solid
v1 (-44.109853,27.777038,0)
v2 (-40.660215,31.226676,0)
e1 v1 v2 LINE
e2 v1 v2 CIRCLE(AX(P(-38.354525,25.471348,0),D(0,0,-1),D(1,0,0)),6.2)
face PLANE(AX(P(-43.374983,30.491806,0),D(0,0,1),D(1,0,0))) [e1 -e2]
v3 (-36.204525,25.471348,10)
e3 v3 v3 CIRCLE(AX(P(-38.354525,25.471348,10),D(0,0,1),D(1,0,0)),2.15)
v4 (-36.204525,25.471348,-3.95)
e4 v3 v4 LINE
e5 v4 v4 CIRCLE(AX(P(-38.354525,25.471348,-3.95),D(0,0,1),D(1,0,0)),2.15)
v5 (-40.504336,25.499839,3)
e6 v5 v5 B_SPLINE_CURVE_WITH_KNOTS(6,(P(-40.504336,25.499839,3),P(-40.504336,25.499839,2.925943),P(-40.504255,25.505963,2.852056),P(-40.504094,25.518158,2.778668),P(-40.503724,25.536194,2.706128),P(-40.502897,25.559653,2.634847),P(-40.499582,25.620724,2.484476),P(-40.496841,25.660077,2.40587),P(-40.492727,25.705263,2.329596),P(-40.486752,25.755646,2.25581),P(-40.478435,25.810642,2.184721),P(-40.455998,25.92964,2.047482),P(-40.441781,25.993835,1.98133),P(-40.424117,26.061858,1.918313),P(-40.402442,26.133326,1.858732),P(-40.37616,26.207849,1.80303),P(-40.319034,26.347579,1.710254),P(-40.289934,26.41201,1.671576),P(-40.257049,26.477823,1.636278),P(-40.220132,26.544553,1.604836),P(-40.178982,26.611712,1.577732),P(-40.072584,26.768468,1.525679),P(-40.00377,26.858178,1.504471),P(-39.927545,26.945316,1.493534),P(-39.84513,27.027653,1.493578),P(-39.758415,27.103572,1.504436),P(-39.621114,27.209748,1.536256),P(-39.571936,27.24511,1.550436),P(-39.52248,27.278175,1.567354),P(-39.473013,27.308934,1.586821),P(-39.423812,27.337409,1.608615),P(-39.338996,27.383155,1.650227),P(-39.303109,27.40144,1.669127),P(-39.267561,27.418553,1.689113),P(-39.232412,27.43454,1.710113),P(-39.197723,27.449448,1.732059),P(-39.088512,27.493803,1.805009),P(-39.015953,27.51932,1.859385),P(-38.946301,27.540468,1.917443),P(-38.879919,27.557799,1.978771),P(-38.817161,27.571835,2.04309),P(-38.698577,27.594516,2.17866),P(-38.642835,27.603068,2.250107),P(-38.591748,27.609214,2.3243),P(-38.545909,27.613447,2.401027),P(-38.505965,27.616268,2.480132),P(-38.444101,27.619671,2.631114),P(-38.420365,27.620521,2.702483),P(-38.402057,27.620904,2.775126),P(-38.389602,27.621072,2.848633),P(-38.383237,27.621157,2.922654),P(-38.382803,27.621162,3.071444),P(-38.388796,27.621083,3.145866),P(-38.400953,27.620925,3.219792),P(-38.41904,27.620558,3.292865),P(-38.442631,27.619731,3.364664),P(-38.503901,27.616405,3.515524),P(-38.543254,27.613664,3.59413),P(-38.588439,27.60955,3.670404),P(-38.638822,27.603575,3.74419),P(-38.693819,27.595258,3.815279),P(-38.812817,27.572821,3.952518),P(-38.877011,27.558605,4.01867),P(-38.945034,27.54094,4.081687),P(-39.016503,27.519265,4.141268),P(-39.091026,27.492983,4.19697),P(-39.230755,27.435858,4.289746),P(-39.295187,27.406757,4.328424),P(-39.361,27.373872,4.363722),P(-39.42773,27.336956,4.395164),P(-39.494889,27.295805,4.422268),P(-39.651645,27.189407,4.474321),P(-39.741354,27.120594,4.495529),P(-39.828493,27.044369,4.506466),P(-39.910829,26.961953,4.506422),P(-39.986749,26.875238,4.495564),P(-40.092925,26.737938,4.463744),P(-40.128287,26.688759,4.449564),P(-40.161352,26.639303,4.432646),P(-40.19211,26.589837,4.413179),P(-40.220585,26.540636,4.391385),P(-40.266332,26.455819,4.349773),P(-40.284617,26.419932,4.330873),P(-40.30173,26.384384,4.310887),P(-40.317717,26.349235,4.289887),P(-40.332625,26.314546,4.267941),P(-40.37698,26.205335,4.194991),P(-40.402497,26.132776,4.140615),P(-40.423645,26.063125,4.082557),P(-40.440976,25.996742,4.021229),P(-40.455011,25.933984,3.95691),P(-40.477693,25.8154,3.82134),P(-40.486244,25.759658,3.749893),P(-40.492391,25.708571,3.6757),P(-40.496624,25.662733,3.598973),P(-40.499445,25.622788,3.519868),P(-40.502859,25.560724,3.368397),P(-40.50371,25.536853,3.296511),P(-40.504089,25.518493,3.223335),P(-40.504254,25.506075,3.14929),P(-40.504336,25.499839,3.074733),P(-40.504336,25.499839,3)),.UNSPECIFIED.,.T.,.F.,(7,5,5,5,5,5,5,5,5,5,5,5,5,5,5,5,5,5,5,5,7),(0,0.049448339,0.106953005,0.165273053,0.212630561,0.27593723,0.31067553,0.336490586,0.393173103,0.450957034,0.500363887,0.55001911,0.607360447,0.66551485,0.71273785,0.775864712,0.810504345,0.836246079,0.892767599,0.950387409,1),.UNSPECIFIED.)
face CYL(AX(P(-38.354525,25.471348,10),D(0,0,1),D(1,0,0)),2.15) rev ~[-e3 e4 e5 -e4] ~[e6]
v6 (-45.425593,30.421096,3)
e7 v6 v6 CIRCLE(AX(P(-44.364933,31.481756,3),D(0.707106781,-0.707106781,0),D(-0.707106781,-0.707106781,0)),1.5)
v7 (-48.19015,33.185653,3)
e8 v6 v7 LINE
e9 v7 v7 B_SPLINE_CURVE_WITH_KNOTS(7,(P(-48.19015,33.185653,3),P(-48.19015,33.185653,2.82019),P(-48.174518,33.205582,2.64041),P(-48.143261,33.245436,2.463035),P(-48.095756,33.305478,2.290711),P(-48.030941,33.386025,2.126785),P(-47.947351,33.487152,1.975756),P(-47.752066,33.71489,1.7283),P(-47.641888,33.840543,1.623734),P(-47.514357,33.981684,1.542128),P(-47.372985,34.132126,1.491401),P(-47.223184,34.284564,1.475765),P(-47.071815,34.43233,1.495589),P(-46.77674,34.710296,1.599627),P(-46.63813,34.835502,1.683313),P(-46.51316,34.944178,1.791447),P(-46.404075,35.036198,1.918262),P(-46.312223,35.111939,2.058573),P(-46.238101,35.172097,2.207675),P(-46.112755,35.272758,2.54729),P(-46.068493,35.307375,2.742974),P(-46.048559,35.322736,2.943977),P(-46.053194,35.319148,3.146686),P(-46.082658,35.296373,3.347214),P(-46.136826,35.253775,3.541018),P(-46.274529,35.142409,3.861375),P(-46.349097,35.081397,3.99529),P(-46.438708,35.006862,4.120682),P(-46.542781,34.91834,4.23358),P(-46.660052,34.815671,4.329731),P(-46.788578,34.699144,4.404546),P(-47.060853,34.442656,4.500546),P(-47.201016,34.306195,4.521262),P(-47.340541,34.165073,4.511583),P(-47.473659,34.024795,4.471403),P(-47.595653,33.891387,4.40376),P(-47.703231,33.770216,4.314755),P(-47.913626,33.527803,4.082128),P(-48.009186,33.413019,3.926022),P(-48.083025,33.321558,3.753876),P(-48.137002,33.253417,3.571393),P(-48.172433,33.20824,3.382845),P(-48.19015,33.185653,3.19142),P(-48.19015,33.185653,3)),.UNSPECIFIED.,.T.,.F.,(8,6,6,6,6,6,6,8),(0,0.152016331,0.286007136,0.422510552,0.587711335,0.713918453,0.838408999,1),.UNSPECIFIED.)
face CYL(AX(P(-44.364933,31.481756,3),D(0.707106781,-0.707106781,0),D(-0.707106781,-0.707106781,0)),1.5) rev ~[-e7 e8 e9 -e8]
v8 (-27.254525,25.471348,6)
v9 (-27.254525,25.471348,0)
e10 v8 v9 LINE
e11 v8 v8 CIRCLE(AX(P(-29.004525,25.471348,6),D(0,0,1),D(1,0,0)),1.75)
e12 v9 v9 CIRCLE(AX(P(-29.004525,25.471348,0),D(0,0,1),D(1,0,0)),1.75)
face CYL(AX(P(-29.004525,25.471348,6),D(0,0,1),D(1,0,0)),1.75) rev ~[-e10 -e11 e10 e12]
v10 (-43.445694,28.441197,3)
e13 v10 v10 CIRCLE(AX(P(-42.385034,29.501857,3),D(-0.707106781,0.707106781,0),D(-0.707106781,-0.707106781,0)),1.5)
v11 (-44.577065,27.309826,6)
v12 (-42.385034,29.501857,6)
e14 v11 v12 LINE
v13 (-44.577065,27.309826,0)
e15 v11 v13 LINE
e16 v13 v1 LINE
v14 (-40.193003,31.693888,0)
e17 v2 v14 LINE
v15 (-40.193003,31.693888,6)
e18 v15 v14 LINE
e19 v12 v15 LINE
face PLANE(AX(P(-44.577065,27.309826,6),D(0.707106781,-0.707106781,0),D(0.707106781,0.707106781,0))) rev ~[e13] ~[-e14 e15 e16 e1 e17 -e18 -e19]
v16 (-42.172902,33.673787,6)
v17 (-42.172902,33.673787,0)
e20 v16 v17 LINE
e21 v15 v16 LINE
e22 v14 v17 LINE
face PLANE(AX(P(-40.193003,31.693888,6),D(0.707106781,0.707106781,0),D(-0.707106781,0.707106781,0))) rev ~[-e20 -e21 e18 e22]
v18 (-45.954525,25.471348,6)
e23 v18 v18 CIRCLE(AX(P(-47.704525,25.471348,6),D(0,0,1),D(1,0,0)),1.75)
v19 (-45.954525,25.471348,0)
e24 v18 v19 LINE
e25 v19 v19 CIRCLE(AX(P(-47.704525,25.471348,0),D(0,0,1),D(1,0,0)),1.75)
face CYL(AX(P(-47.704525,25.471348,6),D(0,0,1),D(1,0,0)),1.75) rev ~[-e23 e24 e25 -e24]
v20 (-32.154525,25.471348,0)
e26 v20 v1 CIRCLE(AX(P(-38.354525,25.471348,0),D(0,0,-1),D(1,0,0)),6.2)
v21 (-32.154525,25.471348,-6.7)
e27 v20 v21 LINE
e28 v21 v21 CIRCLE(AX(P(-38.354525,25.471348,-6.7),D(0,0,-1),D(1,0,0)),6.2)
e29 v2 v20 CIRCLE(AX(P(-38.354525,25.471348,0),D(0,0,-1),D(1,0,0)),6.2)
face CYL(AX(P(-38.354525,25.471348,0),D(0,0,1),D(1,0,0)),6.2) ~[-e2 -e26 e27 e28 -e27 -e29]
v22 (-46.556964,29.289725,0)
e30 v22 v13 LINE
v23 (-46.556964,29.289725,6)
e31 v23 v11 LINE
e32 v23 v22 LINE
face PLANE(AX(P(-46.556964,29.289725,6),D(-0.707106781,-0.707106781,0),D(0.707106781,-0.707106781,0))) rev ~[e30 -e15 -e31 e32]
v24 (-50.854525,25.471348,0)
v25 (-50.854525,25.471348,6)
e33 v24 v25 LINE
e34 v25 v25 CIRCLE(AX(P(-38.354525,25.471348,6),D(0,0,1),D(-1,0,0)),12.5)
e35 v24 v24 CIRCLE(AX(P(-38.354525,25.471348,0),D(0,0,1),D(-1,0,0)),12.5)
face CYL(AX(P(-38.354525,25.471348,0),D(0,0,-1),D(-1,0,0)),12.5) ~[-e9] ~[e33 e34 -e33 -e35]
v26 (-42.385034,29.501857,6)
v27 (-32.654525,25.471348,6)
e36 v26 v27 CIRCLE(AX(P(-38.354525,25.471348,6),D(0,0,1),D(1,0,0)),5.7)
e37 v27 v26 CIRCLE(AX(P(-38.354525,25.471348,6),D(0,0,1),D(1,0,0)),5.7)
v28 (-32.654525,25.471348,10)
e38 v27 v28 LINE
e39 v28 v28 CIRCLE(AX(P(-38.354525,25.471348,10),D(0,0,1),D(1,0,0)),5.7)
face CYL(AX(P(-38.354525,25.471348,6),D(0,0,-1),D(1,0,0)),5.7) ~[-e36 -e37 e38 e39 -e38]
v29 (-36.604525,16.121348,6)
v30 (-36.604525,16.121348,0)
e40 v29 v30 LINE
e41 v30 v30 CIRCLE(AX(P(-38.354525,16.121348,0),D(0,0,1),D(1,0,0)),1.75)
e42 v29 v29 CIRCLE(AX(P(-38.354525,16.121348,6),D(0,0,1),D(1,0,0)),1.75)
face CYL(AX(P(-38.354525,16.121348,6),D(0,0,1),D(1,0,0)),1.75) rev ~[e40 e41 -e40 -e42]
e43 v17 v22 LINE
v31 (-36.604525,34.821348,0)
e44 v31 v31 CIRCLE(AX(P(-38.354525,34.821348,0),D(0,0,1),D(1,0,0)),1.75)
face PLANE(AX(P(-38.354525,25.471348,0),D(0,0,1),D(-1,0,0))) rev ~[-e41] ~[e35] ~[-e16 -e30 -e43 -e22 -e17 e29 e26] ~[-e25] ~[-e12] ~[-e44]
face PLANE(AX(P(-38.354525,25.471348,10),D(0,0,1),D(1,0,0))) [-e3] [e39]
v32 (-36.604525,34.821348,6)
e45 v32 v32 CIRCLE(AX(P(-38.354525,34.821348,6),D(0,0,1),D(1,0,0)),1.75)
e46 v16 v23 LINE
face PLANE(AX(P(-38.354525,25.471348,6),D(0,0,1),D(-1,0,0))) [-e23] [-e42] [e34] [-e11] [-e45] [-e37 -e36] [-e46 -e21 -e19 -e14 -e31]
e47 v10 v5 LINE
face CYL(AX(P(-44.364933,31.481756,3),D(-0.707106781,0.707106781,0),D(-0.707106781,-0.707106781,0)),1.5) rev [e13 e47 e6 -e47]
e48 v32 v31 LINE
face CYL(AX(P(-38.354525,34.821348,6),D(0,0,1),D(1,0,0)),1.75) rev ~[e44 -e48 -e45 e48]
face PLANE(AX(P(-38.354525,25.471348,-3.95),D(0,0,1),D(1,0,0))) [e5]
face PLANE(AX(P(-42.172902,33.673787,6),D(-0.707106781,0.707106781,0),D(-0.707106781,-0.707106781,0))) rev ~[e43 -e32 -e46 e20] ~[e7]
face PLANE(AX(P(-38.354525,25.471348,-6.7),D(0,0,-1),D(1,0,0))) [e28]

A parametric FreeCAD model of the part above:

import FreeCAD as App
import Part
import Sketcher
Q = App.Units.Quantity

doc = App.newDocument("Part")
body = doc.addObject("PartDesign::Body", "Body")

sketch1 = body.newObject("Sketcher::SketchObject", "Sketch")
sketch1.AttachmentSupport = (doc.getObject("XY_Plane"), [""])
sketch1.MapMode = "FlatFace"
sketch1.addGeometry(Part.Circle(App.Vector(-38, 25, 0), App.Vector(0, 0, 1), 12), False)
sketch1.addConstraint(Sketcher.Constraint("Diameter", 0, Q("25 mm")))
sketch1.addConstraint(Sketcher.Constraint("DistanceY", -1, 1, 0, 3, Q("25.471348 mm")))
sketch1.addConstraint(Sketcher.Constraint("DistanceX", 0, 3, -1, 1, Q("38.354525 mm")))
pad1 = body.newObject("PartDesign::Pad", "Pad")
pad1.Profile = sketch1
pad1.Length = 6

sketch2 = body.newObject("Sketcher::SketchObject", "Sketch001")
sketch2.AttachmentSupport = (doc.getObject("XY_Plane"), [""])
sketch2.MapMode = "FlatFace"
sketch2.addGeometry(Part.Circle(App.Vector(-38, 25, 0), App.Vector(0, 0, 1), 6), False)
sketch2.addConstraint(Sketcher.Constraint("Diameter", 0, Q("12.4 mm")))
sketch2.addConstraint(Sketcher.Constraint("DistanceY", -1, 1, 0, 3, Q("25.471348 mm")))
sketch2.addConstraint(Sketcher.Constraint("DistanceX", 0, 3, -1, 1, Q("38.354525 mm")))
pad2 = body.newObject("PartDesign::Pad", "Pad001")
pad2.Profile = sketch2
pad2.Length = 6.7
pad2.Reversed = True

sketch3 = body.newObject("Sketcher::SketchObject", "Sketch002")
sketch3.AttachmentSupport = (doc.getObject("XY_Plane"), [""])
sketch3.MapMode = "FlatFace"
sketch3.AttachmentOffset = App.Placement(App.Vector(0, 0, 6), App.Rotation())
sketch3.addGeometry(Part.Circle(App.Vector(-38, 25, 0), App.Vector(0, 0, 1), 6), False)
sketch3.addConstraint(Sketcher.Constraint("Diameter", 0, Q("11.4 mm")))
sketch3.addConstraint(Sketcher.Constraint("DistanceY", -1, 1, 0, 3, Q("25.471348 mm")))
sketch3.addConstraint(Sketcher.Constraint("DistanceX", 0, 3, -1, 1, Q("38.354525 mm")))
pad3 = body.newObject("PartDesign::Pad", "Pad002")
pad3.Profile = sketch3
pad3.Length = 4

sketch4 = body.newObject("Sketcher::SketchObject", "Sketch003")
sketch4.AttachmentSupport = (doc.getObject("XY_Plane"), [""])
sketch4.MapMode = "FlatFace"
sketch4.AttachmentOffset = App.Placement(App.Vector(0, 0, 10), App.Rotation())
sketch4.addGeometry(Part.Circle(App.Vector(-38.4, 25.5, 0), App.Vector(0, 0, 1), 2.1), False)
sketch4.addConstraint(Sketcher.Constraint("Diameter", 0, Q("4.3 mm")))
sketch4.addConstraint(Sketcher.Constraint("DistanceY", -1, 1, 0, 3, Q("25.471348 mm")))
sketch4.addConstraint(Sketcher.Constraint("DistanceX", 0, 3, -1, 1, Q("38.354525 mm")))
pocket1 = body.newObject("PartDesign::Pocket", "Pocket")
pocket1.Profile = sketch4
pocket1.Length = 13.95

sketch5 = body.newObject("Sketcher::SketchObject", "Sketch004")
sketch5.AttachmentSupport = (doc.getObject("XY_Plane"), [""])
sketch5.MapMode = "FlatFace"
sketch5.AttachmentOffset = App.Placement(App.Vector(0, 0, 6), App.Rotation())
sketch5.addGeometry(Part.Circle(App.Vector(-38.4, 34.8, 0), App.Vector(0, 0, 1), 1.8), False)
sketch5.addGeometry(Part.Circle(App.Vector(-38.4, 16.1, 0), App.Vector(0, 0, 1), 1.8), False)
sketch5.addGeometry(Part.Circle(App.Vector(-29, 25.5, 0), App.Vector(0, 0, 1), 1.8), False)
sketch5.addGeometry(Part.Circle(App.Vector(-47.7, 25.5, 0), App.Vector(0, 0, 1), 1.8), False)
sketch5.addConstraint(Sketcher.Constraint("Equal", 0, 1))
sketch5.addConstraint(Sketcher.Constraint("Equal", 1, 2))
sketch5.addConstraint(Sketcher.Constraint("Equal", 2, 3))
sketch5.addConstraint(Sketcher.Constraint("Horizontal", 2, 3, 3, 3))
sketch5.addConstraint(Sketcher.Constraint("Vertical", 0, 3, 1, 3))
sketch5.addConstraint(Sketcher.Constraint("Diameter", 0, Q("3.5 mm")))
sketch5.addConstraint(Sketcher.Constraint("DistanceY", 1, 3, 0, 3, Q("18.7 mm")))
sketch5.addConstraint(Sketcher.Constraint("DistanceX", 3, 3, 2, 3, Q("18.7 mm")))
sketch5.addConstraint(Sketcher.Constraint("DistanceX", 0, 3, 2, 3, Q("9.35 mm")))
sketch5.addConstraint(Sketcher.Constraint("DistanceY", 2, 3, 0, 3, Q("9.35 mm")))
sketch5.addConstraint(Sketcher.Constraint("DistanceY", -1, 1, 0, 3, Q("34.821348 mm")))
sketch5.addConstraint(Sketcher.Constraint("DistanceX", 0, 3, -1, 1, Q("38.354525 mm")))
pocket2 = body.newObject("PartDesign::Pocket", "Pocket001")
pocket2.Profile = sketch5
pocket2.Type = "ThroughAll"

sketch6 = body.newObject("Sketcher::SketchObject", "Sketch005")
sketch6.AttachmentSupport = (doc.getObject("XY_Plane"), [""])
sketch6.MapMode = "FlatFace"
sketch6.AttachmentOffset = App.Placement(App.Vector(0, 0, 6), App.Rotation())
sketch6.addGeometry(Part.LineSegment(App.Vector(-44.6, 27.3, 0), App.Vector(-40.2, 31.7, 0)), False)
sketch6.addGeometry(Part.LineSegment(App.Vector(-40.2, 31.7, 0), App.Vector(-42.2, 33.7, 0)), False)
sketch6.addGeometry(Part.LineSegment(App.Vector(-42.2, 33.7, 0), App.Vector(-46.6, 29.3, 0)), False)
sketch6.addGeometry(Part.LineSegment(App.Vector(-46.6, 29.3, 0), App.Vector(-44.6, 27.3, 0)), False)
sketch6.addConstraint(Sketcher.Constraint("Coincident", 0, 2, 1, 1))
sketch6.addConstraint(Sketcher.Constraint("Coincident", 1, 2, 2, 1))
sketch6.addConstraint(Sketcher.Constraint("Coincident", 2, 2, 3, 1))
sketch6.addConstraint(Sketcher.Constraint("Coincident", 3, 2, 0, 1))
sketch6.addConstraint(Sketcher.Constraint("Perpendicular", 0, 1))
sketch6.addConstraint(Sketcher.Constraint("Perpendicular", 1, 2))
sketch6.addConstraint(Sketcher.Constraint("Perpendicular", 2, 3))
sketch6.addConstraint(Sketcher.Constraint("Angle", 0, Q("45 deg")))
sketch6.addConstraint(Sketcher.Constraint("Distance", 0, Q("6.2 mm")))
sketch6.addConstraint(Sketcher.Constraint("Distance", 1, Q("2.8 mm")))
sketch6.addConstraint(Sketcher.Constraint("DistanceX", 1, 2, -1, 1, Q("42.172902 mm")))
sketch6.addConstraint(Sketcher.Constraint("DistanceY", -1, 1, 0, 2, Q("31.693888 mm")))
pocket3 = body.newObject("PartDesign::Pocket", "Pocket002")
pocket3.Profile = sketch6
pocket3.Length = 6

sketch7 = body.newObject("Sketcher::SketchObject", "Sketch006")
sketch7.Placement = App.Placement(App.Vector(-37.923344, 37.923344, 0), App.Rotation(App.Vector(0, 0, -1), App.Vector(0.707106781, 0.707106781, 0), App.Vector(0.707106781, -0.707106781, 0), "ZXY"))
sketch7.addGeometry(Part.Circle(App.Vector(-3, -9.1, 0), App.Vector(0, 0, 1), 1.5), False)
sketch7.addConstraint(Sketcher.Constraint("Diameter", 0, Q("3 mm")))
sketch7.addConstraint(Sketcher.Constraint("DistanceX", 0, 3, -1, 1, Q("3 mm")))
sketch7.addConstraint(Sketcher.Constraint("DistanceY", 0, 3, -1, 1, Q("9.109782 mm")))
pocket4 = body.newObject("PartDesign::Pocket", "Pocket003")
pocket4.Profile = sketch7
pocket4.Type = "UpToFirst"

sketch8 = body.newObject("Sketcher::SketchObject", "Sketch007")
sketch8.Placement = App.Placement(App.Vector(-37.923344, 37.923344, 0), App.Rotation(App.Vector(0, 0, -1), App.Vector(0.707106781, 0.707106781, 0), App.Vector(0.707106781, -0.707106781, 0), "ZXY"))
sketch8.addGeometry(Part.Circle(App.Vector(-3, -9.1, 0), App.Vector(0, 0, 1), 1.5), False)
sketch8.addConstraint(Sketcher.Constraint("Diameter", 0, Q("3 mm")))
sketch8.addConstraint(Sketcher.Constraint("DistanceX", 0, 3, -1, 1, Q("3 mm")))
sketch8.addConstraint(Sketcher.Constraint("DistanceY", 0, 3, -1, 1, Q("9.109782 mm")))
pocket5 = body.newObject("PartDesign::Pocket", "Pocket004")
pocket5.Profile = sketch8
pocket5.Length = 6.959708
pocket5.Reversed = True

doc.recompute()
